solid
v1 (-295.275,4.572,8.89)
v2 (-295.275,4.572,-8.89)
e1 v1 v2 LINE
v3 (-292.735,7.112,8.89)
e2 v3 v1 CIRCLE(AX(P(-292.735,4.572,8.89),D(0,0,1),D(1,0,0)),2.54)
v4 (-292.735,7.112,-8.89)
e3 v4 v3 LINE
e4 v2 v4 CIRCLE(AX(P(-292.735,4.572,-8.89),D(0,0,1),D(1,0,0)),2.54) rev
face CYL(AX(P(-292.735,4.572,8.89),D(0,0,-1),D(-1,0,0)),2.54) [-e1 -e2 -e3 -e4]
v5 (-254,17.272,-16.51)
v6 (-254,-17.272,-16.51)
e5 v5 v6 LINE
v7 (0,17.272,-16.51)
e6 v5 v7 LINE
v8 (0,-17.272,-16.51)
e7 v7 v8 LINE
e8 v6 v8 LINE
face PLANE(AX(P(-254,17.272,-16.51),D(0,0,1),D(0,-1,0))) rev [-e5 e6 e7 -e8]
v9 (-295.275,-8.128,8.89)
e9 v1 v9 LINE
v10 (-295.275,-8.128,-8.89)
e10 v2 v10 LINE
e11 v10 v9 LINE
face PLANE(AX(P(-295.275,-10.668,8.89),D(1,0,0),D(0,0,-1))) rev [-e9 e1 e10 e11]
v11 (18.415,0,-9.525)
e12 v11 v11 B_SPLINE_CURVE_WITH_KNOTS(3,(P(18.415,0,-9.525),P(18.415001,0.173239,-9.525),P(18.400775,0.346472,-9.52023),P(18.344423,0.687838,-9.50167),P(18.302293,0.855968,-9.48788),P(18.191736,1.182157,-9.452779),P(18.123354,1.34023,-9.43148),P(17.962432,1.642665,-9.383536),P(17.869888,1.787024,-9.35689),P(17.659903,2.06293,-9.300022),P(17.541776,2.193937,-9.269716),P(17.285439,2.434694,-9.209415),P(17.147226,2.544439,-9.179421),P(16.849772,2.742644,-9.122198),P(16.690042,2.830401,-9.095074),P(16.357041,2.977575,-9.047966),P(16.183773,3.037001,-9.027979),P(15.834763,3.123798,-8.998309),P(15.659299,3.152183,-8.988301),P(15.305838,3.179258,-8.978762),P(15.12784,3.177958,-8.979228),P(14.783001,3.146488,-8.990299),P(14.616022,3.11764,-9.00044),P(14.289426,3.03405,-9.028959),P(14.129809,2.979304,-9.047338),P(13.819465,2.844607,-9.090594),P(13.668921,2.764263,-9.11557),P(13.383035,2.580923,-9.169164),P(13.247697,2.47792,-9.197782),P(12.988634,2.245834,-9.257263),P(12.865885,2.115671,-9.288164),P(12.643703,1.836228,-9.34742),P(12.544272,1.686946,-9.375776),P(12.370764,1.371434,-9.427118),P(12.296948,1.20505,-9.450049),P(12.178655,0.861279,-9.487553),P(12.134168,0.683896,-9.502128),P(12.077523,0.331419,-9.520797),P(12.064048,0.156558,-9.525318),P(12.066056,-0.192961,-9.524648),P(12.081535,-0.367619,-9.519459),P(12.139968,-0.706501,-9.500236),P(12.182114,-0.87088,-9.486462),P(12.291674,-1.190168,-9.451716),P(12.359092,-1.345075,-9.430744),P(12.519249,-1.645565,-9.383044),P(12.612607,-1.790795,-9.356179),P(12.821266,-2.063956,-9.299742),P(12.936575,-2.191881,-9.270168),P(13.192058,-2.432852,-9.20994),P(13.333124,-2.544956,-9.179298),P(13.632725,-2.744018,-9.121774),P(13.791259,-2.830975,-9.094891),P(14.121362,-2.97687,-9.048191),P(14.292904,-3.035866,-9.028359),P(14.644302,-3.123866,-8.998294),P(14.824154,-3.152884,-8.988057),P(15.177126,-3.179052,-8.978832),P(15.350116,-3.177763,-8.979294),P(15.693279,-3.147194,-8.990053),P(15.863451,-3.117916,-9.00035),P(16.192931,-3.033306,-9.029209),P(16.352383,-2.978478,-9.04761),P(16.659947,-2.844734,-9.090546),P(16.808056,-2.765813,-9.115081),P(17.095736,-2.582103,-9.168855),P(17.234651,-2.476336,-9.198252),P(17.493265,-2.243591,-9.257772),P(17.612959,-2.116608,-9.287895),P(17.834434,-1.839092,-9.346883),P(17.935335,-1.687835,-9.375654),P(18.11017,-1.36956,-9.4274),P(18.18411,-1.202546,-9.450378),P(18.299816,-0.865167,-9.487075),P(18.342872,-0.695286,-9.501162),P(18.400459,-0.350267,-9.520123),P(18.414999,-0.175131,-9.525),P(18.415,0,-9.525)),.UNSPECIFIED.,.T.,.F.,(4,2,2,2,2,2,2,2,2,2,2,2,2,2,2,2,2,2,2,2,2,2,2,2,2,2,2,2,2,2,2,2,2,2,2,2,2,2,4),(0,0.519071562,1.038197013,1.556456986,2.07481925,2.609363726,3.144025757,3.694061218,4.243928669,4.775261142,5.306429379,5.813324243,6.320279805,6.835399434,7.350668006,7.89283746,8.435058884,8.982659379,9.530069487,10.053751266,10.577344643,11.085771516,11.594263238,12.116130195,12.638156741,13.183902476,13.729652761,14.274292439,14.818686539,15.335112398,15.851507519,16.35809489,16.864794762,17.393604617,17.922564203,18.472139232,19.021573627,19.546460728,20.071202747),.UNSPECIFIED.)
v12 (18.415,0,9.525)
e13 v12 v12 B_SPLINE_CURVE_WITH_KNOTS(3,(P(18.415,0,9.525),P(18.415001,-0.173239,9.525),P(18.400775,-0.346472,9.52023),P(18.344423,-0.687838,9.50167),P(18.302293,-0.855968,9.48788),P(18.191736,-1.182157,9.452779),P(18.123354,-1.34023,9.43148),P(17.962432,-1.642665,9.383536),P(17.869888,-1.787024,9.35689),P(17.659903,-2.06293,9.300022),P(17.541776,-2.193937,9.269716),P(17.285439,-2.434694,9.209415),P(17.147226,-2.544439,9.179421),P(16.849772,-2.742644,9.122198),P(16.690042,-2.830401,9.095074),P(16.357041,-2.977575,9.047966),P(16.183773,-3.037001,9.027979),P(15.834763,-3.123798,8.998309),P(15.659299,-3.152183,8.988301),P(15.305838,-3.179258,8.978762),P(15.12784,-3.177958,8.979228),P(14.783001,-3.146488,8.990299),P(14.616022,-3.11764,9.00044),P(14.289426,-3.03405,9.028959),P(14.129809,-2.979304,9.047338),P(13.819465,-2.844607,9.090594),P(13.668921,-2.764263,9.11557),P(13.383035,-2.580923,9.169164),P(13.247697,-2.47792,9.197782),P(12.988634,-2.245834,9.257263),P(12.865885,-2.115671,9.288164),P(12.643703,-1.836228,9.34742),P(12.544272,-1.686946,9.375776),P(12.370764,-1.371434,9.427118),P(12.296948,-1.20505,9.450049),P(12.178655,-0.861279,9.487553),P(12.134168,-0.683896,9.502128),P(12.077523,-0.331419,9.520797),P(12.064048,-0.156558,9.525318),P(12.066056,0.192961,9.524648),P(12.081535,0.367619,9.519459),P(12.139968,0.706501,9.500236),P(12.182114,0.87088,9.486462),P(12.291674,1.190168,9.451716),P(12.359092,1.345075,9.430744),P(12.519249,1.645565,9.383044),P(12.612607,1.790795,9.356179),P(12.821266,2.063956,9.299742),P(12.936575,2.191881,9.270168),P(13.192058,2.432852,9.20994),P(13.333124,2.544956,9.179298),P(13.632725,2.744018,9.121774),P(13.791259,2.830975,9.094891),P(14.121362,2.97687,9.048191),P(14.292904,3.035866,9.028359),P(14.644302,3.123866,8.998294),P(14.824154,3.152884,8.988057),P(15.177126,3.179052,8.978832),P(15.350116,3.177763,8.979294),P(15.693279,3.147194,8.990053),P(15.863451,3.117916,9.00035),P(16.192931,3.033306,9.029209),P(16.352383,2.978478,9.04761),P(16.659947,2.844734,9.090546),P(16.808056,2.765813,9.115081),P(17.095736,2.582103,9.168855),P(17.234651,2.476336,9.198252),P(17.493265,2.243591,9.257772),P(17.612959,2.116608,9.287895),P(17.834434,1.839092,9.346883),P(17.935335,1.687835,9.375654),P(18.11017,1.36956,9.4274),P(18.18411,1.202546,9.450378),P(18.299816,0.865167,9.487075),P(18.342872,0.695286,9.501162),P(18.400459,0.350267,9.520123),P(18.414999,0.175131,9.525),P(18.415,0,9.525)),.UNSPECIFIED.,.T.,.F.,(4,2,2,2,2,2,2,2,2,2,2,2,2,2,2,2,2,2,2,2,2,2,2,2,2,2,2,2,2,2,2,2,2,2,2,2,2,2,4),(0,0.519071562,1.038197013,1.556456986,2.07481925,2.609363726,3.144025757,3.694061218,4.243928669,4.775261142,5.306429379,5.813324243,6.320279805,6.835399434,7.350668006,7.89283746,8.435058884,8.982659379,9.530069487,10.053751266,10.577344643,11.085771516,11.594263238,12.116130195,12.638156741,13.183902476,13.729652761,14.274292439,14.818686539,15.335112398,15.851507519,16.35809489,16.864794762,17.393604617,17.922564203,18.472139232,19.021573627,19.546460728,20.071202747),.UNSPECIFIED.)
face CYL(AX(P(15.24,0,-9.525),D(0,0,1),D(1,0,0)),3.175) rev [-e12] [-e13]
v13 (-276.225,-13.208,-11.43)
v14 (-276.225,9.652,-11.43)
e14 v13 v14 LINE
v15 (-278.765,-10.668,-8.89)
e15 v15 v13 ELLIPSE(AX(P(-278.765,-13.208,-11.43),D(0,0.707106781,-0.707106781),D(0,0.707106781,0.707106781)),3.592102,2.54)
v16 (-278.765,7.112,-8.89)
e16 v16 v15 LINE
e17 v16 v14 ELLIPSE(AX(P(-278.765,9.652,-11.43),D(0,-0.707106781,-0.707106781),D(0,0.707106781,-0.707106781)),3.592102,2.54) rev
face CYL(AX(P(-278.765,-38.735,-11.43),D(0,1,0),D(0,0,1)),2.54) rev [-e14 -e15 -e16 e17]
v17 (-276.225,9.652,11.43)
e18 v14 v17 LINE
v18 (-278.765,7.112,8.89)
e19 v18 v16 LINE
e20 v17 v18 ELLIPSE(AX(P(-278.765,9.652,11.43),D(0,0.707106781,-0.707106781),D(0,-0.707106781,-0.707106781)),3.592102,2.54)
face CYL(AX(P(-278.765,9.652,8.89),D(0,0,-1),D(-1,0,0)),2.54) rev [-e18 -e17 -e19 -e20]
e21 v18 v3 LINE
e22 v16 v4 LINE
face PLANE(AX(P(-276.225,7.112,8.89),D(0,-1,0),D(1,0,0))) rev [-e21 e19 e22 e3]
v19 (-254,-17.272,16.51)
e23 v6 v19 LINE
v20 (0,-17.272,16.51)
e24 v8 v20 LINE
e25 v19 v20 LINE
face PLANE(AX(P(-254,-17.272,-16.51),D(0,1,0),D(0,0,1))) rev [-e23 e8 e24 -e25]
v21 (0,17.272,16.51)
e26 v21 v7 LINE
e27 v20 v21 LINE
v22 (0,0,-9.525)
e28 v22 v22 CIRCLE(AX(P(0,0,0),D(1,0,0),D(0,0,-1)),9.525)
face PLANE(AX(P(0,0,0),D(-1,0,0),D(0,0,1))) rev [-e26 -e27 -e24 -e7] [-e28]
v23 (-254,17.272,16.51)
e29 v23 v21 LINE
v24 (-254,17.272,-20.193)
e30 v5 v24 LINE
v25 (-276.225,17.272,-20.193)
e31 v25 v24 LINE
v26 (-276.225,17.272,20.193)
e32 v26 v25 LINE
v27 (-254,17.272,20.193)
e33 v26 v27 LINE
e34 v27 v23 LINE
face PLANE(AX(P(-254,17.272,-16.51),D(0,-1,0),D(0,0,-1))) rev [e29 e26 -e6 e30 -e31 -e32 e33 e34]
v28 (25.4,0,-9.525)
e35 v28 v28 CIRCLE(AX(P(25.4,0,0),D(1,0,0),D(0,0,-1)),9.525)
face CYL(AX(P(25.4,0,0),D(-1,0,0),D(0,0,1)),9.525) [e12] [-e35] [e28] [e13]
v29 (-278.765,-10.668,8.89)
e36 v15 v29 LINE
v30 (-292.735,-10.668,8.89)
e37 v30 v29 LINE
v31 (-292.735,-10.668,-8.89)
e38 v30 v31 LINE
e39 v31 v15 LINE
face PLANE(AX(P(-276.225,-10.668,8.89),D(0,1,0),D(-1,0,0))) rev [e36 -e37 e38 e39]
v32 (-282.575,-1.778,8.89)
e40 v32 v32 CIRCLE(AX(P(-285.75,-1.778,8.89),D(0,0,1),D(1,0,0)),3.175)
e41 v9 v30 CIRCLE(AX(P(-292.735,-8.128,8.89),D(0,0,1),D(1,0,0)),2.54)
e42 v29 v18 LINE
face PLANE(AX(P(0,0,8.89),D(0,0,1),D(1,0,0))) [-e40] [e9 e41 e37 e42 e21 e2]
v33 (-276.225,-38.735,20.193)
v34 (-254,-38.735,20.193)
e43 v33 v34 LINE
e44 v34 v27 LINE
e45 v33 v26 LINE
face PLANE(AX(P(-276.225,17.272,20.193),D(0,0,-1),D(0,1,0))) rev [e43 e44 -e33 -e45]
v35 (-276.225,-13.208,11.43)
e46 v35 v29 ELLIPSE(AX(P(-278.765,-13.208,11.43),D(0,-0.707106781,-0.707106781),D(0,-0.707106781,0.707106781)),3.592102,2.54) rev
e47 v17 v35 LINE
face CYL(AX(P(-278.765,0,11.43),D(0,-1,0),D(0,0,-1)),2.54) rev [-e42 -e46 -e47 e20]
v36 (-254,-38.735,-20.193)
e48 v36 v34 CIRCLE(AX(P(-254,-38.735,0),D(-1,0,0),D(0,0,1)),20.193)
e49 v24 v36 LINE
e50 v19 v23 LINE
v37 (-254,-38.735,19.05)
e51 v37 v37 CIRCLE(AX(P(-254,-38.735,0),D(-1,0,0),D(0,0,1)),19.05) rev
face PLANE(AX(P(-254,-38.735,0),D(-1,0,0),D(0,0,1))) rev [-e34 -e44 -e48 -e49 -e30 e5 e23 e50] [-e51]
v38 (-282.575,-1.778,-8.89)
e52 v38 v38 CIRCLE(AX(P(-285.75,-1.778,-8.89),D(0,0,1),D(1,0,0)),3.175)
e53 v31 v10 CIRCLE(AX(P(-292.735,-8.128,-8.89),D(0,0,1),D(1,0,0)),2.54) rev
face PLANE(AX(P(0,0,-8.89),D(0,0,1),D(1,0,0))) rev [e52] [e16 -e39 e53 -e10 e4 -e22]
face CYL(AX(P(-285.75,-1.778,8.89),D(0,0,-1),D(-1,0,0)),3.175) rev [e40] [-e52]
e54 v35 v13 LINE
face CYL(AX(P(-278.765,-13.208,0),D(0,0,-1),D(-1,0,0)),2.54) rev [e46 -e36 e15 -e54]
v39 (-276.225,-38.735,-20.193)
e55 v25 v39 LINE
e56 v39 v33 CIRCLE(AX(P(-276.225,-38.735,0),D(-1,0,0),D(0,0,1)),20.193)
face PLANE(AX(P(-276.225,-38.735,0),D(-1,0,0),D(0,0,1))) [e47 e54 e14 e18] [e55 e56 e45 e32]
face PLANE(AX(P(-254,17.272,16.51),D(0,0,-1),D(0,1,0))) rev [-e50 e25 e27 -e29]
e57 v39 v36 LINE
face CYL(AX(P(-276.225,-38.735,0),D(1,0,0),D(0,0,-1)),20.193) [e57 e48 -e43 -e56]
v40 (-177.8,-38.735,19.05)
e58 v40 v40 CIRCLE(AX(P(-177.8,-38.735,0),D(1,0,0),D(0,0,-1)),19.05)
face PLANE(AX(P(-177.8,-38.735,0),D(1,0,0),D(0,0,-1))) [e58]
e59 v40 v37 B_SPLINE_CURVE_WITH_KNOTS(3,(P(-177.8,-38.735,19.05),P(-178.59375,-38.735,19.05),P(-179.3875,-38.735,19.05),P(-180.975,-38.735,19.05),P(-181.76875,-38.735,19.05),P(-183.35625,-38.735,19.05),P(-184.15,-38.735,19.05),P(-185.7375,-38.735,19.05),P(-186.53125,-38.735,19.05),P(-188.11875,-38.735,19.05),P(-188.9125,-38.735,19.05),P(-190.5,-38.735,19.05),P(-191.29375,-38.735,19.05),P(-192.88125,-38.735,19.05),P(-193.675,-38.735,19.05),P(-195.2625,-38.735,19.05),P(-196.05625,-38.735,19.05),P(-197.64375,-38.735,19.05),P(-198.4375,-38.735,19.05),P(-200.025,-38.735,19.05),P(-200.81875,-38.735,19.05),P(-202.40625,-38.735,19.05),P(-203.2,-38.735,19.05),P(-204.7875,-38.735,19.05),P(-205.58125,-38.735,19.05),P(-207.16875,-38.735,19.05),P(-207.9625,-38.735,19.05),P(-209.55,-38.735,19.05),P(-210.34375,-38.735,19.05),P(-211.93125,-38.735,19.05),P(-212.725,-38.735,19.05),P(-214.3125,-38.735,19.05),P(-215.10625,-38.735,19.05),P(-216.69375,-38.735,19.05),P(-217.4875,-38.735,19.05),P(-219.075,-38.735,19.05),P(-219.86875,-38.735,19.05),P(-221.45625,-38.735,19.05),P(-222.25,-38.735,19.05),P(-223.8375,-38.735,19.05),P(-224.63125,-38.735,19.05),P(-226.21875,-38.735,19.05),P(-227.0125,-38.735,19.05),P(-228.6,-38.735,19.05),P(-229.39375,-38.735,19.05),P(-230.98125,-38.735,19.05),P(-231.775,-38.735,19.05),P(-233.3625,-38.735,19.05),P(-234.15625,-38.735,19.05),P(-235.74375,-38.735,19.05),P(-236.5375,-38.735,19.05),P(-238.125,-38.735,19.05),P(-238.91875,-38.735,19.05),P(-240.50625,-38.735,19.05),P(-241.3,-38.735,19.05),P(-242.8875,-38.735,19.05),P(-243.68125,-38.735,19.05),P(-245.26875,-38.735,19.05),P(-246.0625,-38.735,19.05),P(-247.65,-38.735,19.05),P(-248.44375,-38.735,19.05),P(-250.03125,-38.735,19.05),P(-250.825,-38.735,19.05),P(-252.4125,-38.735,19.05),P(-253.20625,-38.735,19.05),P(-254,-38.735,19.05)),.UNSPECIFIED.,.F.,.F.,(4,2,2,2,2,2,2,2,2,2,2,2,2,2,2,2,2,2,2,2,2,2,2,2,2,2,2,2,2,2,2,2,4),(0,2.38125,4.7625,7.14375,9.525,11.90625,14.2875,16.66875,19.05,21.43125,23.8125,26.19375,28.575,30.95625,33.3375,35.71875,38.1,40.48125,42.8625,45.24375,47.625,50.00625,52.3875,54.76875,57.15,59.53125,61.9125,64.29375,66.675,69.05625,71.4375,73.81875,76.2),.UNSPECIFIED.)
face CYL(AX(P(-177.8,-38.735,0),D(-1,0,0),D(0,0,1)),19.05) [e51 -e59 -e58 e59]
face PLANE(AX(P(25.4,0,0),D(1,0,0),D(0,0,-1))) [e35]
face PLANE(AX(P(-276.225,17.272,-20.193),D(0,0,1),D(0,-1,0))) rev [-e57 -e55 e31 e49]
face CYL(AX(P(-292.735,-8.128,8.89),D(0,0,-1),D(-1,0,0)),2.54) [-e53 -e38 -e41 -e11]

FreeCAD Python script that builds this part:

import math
import FreeCAD as App
import Part
import Sketcher
from FreeCAD import Vector
Q = App.Units.Quantity


def edges_at(feature, points):
    """Names of the edges that pass closest to the given points."""
    edges = feature.Shape.Edges
    near = lambda p: min(range(len(edges)), key=lambda i: edges[i].distToShape(Part.Vertex(*p))[0])
    return sorted({f"Edge{near(p) + 1}" for p in points})


def add_polygon(sketch, points):
    """Adds a closed chain of lines whose ends are joined by coincident constraints."""
    first, n = sketch.GeometryCount, len(points)
    for a, b in zip(points, points[1:] + points[:1]):
        sketch.addGeometry(Part.LineSegment(App.Vector(*a, 0), App.Vector(*b, 0)), False)
    for i in range(n):
        sketch.addConstraint(Sketcher.Constraint("Coincident", first + i, 2, first + (i + 1) % n, 1))

doc = App.newDocument("Part")
body = doc.addObject("PartDesign::Body", "Body")

sketch1 = doc.addObject("Sketcher::SketchObject", "Sketch")
body.addObject(sketch1)
sketch1.AttachmentSupport = (doc.YZ_Plane, [""])
sketch1.MapMode = "FlatFace"
sketch1.addGeometry(Part.Circle(Vector(0, 0, 0), Vector(0, 0, 1), 10), False)
sketch1.addConstraint([
    Sketcher.Constraint("Coincident", 0, 3, -1, 1),
    Sketcher.Constraint("Diameter", 0, Q("0.75 in")),
])
pad1 = doc.addObject("PartDesign::Pad", "Pad")
body.addObject(pad1)
pad1.Profile = sketch1
pad1.Length = Q("1 in")

sketch2 = doc.addObject("Sketcher::SketchObject", "Sketch001")
body.addObject(sketch2)
sketch2.AttachmentSupport = (doc.XY_Plane, [""])
sketch2.MapMode = "FlatFace"
sketch2.addGeometry(Part.Circle(Vector(15.2, 0, 0), Vector(0, 0, 1), 3.2), False)
sketch2.addConstraint([
    Sketcher.Constraint("PointOnObject", 0, 3, -1),
    Sketcher.Constraint("Diameter", 0, Q("0.25 in")),
    Sketcher.Constraint("DistanceX", -1, 1, 0, 3, Q("0.6 in")),
])
pocket1 = doc.addObject("PartDesign::Pocket", "Pocket")
body.addObject(pocket1)
pocket1.Profile = sketch2
pocket1.Type = "ThroughAll"
pocket1.Midplane = True

sketch3 = doc.addObject("Sketcher::SketchObject", "Sketch002")
body.addObject(sketch3)
sketch3.AttachmentSupport = (doc.YZ_Plane, [""])
sketch3.MapMode = "FlatFace"
add_polygon(sketch3, [(17, -17), (-17, -17), (-17, 17), (17, 17)])
sketch3.addConstraint([
    Sketcher.Constraint("Horizontal", 0),
    Sketcher.Constraint("Vertical", 1),
    Sketcher.Constraint("Horizontal", 2),
    Sketcher.Constraint("Vertical", 3),
    Sketcher.Constraint("Symmetric", 0, 2, 2, 2, -1, 1),
    Sketcher.Constraint("DistanceY", 1, 1, 1, 2, Q("1.3 in")),
    Sketcher.Constraint("DistanceX", 0, 2, 0, 1, Q("1.36 in")),
])
pad2 = doc.addObject("PartDesign::Pad", "Pad001")
body.addObject(pad2)
pad2.Profile = sketch3
pad2.Length = Q("10 in")
pad2.Reversed = True

sketch4 = doc.addObject("Sketcher::SketchObject", "Sketch003")
body.addObject(sketch4)
sketch4.AttachmentSupport = (doc.YZ_Plane, [""])
sketch4.MapMode = "FlatFace"
sketch4.AttachmentOffset = App.Placement(Vector(0, 0, -10 * 25.4), App.Rotation())
sketch4.addGeometry([
    Part.LineSegment(Vector(17, 20, 0), Vector(17, -20, 0)),
    Part.LineSegment(Vector(17, -20, 0), Vector(-39, -20, 0)),
    Part.ArcOfCircle(Part.Circle(Vector(-39, 0, 0), Vector(0, 0, 1), 20), math.radians(90), math.radians(270)),
    Part.LineSegment(Vector(-39, 20, 0), Vector(17, 20, 0)),
], False)
sketch4.addConstraint([
    Sketcher.Constraint("Coincident", 0, 2, 1, 1),
    Sketcher.Constraint("Tangent", 1, 2, 2, 2),
    Sketcher.Constraint("Tangent", 2, 1, 3, 1),
    Sketcher.Constraint("Coincident", 3, 2, 0, 1),
    Sketcher.Constraint("Vertical", 0),
    Sketcher.Constraint("Horizontal", 1),
    Sketcher.Constraint("Horizontal", 3),
    Sketcher.Constraint("PointOnObject", 2, 3, -1),
    Sketcher.Constraint("Radius", 2, Q("0.795 in")),
    Sketcher.Constraint("DistanceX", 1, 2, 1, 1, Q("2.205 in")),
    Sketcher.Constraint("DistanceX", -1, 1, 0, 2, Q("0.68 in")),
])
pad3 = doc.addObject("PartDesign::Pad", "Pad002")
body.addObject(pad3)
pad3.Profile = sketch4
pad3.Length = Q("0.875 in")
pad3.Reversed = True

sketch5 = doc.addObject("Sketcher::SketchObject", "Sketch004")
body.addObject(sketch5)
sketch5.AttachmentSupport = (doc.YZ_Plane, [""])
sketch5.MapMode = "FlatFace"
sketch5.AttachmentOffset = App.Placement(Vector(0, 0, -10 * 25.4), App.Rotation())
sketch5.addGeometry(Part.Circle(Vector(-39, 0, 0), Vector(0, 0, 1), 19), False)
sketch5.addConstraint([
    Sketcher.Constraint("PointOnObject", 0, 3, -1),
    Sketcher.Constraint("Diameter", 0, Q("1.5 in")),
    Sketcher.Constraint("DistanceX", 0, 3, -1, 1, Q("1.525 in")),
])
pad4 = doc.addObject("PartDesign::Pad", "Pad003")
body.addObject(pad4)
pad4.Profile = sketch5
pad4.Length = Q("3 in")

sketch6 = doc.addObject("Sketcher::SketchObject", "Sketch005")
body.addObject(sketch6)
sketch6.AttachmentSupport = (doc.XY_Plane, [""])
sketch6.MapMode = "FlatFace"
add_polygon(sketch6, [(-295.3, 7.1), (-295.3, -10.7), (-276.2, -10.7), (-276.2, 7.1)])
sketch6.addGeometry(Part.Circle(Vector(-285.8, -1.8, 0), Vector(0, 0, 1), 3.2), False)
sketch6.addConstraint([
    Sketcher.Constraint("Vertical", 0),
    Sketcher.Constraint("Horizontal", 1),
    Sketcher.Constraint("Vertical", 2),
    Sketcher.Constraint("Horizontal", 3),
    Sketcher.Constraint("Diameter", 4, Q("0.25 in")),
    Sketcher.Constraint("DistanceY", 0, 2, 0, 1, Q("0.7 in")),
    Sketcher.Constraint("DistanceX", 1, 1, 1, 2, Q("0.75 in")),
    Sketcher.Constraint("DistanceX", 4, 3, -1, 1, Q("11.25 in")),
    Sketcher.Constraint("DistanceY", 4, 3, -1, 1, Q("0.07 in")),
    Sketcher.Constraint("DistanceY", 0, 2, -1, 1, Q("0.42 in")),
    Sketcher.Constraint("DistanceX", 0, 2, -1, 1, Q("11.625 in")),
])
pad5 = doc.addObject("PartDesign::Pad", "Pad004")
body.addObject(pad5)
pad5.Profile = sketch6
pad5.Length = Q("0.7 in")
pad5.Midplane = True
doc.recompute()

fillet = doc.addObject("PartDesign::Fillet", "Fillet")
body.addObject(fillet)
fillet.Base = (pad5, edges_at(pad5, [
    (-276.225, -1.778, 8.89),
    (-276.225, -1.778, -8.89),
    (-276.225, -10.668, 0),
    (-276.225, 7.112, 0),
    (-295.275, 7.112, 0),
    (-295.275, -10.668, 0),
]))
fillet.Radius = Q("0.1 in")

doc.recompute()
